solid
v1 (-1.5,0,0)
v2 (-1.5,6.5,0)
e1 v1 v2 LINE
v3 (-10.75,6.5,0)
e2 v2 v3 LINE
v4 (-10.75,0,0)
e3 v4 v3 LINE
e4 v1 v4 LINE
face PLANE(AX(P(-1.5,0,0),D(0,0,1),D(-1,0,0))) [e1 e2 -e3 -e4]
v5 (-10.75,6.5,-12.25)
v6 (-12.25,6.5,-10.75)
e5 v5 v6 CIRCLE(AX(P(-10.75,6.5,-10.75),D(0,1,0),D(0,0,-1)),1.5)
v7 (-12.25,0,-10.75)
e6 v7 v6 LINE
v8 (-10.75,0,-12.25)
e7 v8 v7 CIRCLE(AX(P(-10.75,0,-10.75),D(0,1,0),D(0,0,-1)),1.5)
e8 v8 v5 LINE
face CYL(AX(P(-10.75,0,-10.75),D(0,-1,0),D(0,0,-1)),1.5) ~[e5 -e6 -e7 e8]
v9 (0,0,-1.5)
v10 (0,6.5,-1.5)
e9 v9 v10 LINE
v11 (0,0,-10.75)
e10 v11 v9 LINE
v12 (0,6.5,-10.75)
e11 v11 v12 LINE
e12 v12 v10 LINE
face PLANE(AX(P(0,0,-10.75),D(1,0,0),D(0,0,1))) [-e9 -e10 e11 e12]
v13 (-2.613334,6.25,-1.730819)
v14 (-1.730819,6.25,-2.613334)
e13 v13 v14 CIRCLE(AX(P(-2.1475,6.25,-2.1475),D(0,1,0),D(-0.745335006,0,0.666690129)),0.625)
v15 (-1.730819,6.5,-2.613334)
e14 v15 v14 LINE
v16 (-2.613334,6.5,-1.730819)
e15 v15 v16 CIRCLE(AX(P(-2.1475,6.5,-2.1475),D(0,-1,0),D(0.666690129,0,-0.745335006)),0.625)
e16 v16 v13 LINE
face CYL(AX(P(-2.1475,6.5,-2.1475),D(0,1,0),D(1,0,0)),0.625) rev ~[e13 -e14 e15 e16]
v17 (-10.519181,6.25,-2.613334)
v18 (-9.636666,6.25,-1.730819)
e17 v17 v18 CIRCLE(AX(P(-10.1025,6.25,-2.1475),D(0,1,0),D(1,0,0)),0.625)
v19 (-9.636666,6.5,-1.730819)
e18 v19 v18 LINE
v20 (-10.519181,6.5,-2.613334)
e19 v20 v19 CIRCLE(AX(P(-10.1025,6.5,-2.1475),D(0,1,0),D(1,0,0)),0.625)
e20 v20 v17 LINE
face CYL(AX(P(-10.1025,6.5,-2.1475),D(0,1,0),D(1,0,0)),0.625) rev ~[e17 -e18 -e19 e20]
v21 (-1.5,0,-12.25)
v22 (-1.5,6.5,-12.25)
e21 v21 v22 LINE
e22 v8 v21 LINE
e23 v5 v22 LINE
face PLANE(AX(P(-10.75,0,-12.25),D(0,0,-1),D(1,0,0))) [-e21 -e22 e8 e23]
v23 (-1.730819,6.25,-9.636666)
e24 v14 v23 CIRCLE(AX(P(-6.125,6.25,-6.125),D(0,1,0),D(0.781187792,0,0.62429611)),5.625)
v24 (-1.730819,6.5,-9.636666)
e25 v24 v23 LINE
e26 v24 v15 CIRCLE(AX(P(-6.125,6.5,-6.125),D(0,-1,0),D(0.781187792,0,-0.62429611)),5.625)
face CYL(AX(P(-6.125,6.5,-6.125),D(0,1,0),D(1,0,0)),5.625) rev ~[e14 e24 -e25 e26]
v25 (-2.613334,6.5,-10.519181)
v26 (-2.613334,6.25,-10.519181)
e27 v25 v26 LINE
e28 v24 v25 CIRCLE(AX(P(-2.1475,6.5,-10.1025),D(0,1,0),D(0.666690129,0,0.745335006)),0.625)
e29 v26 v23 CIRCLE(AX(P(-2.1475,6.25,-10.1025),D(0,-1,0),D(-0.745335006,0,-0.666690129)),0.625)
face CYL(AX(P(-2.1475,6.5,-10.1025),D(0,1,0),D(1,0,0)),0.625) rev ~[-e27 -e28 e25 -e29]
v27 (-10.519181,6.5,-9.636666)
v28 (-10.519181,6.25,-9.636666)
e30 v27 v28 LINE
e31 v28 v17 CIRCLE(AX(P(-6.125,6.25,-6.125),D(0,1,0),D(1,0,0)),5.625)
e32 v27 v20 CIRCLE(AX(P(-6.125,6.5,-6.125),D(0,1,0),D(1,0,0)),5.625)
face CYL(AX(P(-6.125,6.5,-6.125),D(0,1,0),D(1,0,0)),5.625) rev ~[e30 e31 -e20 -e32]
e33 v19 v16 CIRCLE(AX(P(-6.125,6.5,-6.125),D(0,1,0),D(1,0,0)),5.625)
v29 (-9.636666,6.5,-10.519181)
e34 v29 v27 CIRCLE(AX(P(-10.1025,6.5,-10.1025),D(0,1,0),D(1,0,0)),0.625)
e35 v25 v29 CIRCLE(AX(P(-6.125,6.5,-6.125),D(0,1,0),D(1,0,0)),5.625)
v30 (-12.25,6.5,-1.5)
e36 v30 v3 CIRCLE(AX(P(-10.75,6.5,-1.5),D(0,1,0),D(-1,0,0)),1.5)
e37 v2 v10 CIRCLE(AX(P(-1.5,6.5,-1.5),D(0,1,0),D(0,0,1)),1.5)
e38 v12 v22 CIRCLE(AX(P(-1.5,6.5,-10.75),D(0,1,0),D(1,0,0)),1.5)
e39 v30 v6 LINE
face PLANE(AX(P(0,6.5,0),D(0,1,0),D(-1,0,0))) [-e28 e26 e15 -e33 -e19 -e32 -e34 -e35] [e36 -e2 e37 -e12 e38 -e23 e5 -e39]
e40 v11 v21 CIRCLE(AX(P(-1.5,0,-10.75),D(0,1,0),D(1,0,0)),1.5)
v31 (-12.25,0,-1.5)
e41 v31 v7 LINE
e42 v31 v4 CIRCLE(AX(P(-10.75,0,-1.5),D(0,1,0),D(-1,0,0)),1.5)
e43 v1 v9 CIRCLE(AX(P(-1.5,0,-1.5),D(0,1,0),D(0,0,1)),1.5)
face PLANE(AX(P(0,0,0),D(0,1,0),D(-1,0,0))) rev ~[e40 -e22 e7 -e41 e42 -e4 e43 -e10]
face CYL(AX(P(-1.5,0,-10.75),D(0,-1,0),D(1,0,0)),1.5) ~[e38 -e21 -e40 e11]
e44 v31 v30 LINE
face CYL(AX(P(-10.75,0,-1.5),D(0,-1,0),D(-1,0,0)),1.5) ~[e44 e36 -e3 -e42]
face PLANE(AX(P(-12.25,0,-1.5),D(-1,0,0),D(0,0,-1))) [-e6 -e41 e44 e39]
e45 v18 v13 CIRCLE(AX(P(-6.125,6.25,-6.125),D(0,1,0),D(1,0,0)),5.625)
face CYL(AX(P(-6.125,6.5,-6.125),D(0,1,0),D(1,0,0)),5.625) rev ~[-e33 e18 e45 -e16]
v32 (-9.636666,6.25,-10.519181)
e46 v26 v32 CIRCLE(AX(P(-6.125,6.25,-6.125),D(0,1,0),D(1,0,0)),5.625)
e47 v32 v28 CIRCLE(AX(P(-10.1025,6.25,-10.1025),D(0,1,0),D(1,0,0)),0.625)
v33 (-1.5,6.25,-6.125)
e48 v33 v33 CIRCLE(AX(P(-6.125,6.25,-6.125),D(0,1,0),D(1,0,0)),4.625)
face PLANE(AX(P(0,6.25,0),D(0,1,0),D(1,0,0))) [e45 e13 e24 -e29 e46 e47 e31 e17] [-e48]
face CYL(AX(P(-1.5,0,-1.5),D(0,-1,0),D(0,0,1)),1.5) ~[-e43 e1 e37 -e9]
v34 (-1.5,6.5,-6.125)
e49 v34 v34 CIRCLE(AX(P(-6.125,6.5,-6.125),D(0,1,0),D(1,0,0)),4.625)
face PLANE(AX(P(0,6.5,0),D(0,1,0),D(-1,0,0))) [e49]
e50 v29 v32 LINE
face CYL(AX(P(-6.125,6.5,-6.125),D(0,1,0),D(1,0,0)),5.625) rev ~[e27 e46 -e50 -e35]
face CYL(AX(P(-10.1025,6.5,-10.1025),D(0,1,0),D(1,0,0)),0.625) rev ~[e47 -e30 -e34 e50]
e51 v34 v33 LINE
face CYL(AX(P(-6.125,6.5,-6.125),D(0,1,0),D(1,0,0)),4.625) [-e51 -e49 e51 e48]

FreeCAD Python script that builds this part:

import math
import FreeCAD as App
import Part
import Sketcher
Q = App.Units.Quantity

doc = App.newDocument("Part")
body = doc.addObject("PartDesign::Body", "Body")

sketch1 = body.newObject("Sketcher::SketchObject", "Sketch")
sketch1.AttachmentSupport = (doc.getObject("XZ_Plane"), [""])
sketch1.MapMode = "FlatFace"
sketch1.addGeometry(Part.LineSegment(App.Vector(-10.8, 0, 0), App.Vector(-1.5, 0, 0)), False)
sketch1.addGeometry(Part.ArcOfCircle(Part.Circle(App.Vector(-1.5, -1.5, 0), App.Vector(0, 0, 1), 1.5), math.radians(0), math.radians(90)), False)
sketch1.addGeometry(Part.LineSegment(App.Vector(0, -1.5, 0), App.Vector(0, -10.8, 0)), False)
sketch1.addGeometry(Part.ArcOfCircle(Part.Circle(App.Vector(-1.5, -10.8, 0), App.Vector(0, 0, 1), 1.5), math.radians(-90), math.radians(0)), False)
sketch1.addGeometry(Part.LineSegment(App.Vector(-1.5, -12.2, 0), App.Vector(-10.8, -12.2, 0)), False)
sketch1.addGeometry(Part.ArcOfCircle(Part.Circle(App.Vector(-10.8, -10.8, 0), App.Vector(0, 0, 1), 1.5), math.radians(180), math.radians(270)), False)
sketch1.addGeometry(Part.LineSegment(App.Vector(-12.2, -10.8, 0), App.Vector(-12.2, -1.5, 0)), False)
sketch1.addGeometry(Part.ArcOfCircle(Part.Circle(App.Vector(-10.8, -1.5, 0), App.Vector(0, 0, 1), 1.5), math.radians(90), math.radians(180)), False)
sketch1.addConstraint(Sketcher.Constraint("Tangent", 0, 2, 1, 2))
sketch1.addConstraint(Sketcher.Constraint("Tangent", 1, 1, 2, 1))
sketch1.addConstraint(Sketcher.Constraint("Tangent", 2, 2, 3, 2))
sketch1.addConstraint(Sketcher.Constraint("Tangent", 3, 1, 4, 1))
sketch1.addConstraint(Sketcher.Constraint("Tangent", 4, 2, 5, 2))
sketch1.addConstraint(Sketcher.Constraint("Tangent", 5, 1, 6, 1))
sketch1.addConstraint(Sketcher.Constraint("Tangent", 6, 2, 7, 2))
sketch1.addConstraint(Sketcher.Constraint("Tangent", 7, 1, 0, 1))
sketch1.addConstraint(Sketcher.Constraint("Horizontal", 0))
sketch1.addConstraint(Sketcher.Constraint("Vertical", 2))
sketch1.addConstraint(Sketcher.Constraint("Horizontal", 4))
sketch1.addConstraint(Sketcher.Constraint("Vertical", 6))
sketch1.addConstraint(Sketcher.Constraint("Equal", 1, 3))
sketch1.addConstraint(Sketcher.Constraint("Equal", 3, 5))
sketch1.addConstraint(Sketcher.Constraint("Equal", 5, 7))
sketch1.addConstraint(Sketcher.Constraint("PointOnObject", 0, 2, -1))
sketch1.addConstraint(Sketcher.Constraint("PointOnObject", 1, 1, -2))
sketch1.addConstraint(Sketcher.Constraint("Equal", 4, 2))
sketch1.addConstraint(Sketcher.Constraint("Radius", 1, Q("1.5 mm")))
sketch1.addConstraint(Sketcher.Constraint("DistanceY", 3, 1, -1, 1, Q("12.25 mm")))
pad1 = body.newObject("PartDesign::Pad", "Pad")
pad1.Profile = sketch1
pad1.Length = 6.5
pad1.Reversed = True

sketch2 = body.newObject("Sketcher::SketchObject", "Sketch001")
sketch2.AttachmentSupport = (doc.getObject("XZ_Plane"), [""])
sketch2.MapMode = "FlatFace"
sketch2.AttachmentOffset = App.Placement(App.Vector(0, 0, -6.5), App.Rotation())
sketch2.addGeometry(Part.ArcOfCircle(Part.Circle(App.Vector(-6.1, -6.1, 0), App.Vector(0, 0, 1), 5.6), math.radians(-39), math.radians(39)), False)
sketch2.addGeometry(Part.ArcOfCircle(Part.Circle(App.Vector(-2.1, -10.1, 0), App.Vector(0, 0, 1), 0.6), math.radians(-138), math.radians(48)), False)
sketch2.addGeometry(Part.ArcOfCircle(Part.Circle(App.Vector(-6.1, -6.1, 0), App.Vector(0, 0, 1), 5.6), math.radians(-129), math.radians(-51)), False)
sketch2.addGeometry(Part.ArcOfCircle(Part.Circle(App.Vector(-10.1, -10.1, 0), App.Vector(0, 0, 1), 0.6), math.radians(132), math.radians(318)), False)
sketch2.addGeometry(Part.ArcOfCircle(Part.Circle(App.Vector(-6.1, -6.1, 0), App.Vector(0, 0, 1), 5.6), math.radians(141), math.radians(219)), False)
sketch2.addGeometry(Part.ArcOfCircle(Part.Circle(App.Vector(-10.1, -2.1, 0), App.Vector(0, 0, 1), 0.6), math.radians(42), math.radians(228)), False)
sketch2.addGeometry(Part.ArcOfCircle(Part.Circle(App.Vector(-6.1, -6.1, 0), App.Vector(0, 0, 1), 5.6), math.radians(51), math.radians(129)), False)
sketch2.addGeometry(Part.ArcOfCircle(Part.Circle(App.Vector(-2.1, -2.1, 0), App.Vector(0, 0, 1), 0.6), math.radians(-48), math.radians(138)), False)
sketch2.addGeometry(Part.Circle(App.Vector(-6.1, -6.1, 0), App.Vector(0, 0, 1), 4.6), False)
sketch2.addConstraint(Sketcher.Constraint("Coincident", 0, 1, 1, 2))
sketch2.addConstraint(Sketcher.Constraint("Coincident", 1, 1, 2, 2))
sketch2.addConstraint(Sketcher.Constraint("Coincident", 2, 1, 3, 2))
sketch2.addConstraint(Sketcher.Constraint("Coincident", 3, 1, 4, 2))
sketch2.addConstraint(Sketcher.Constraint("Coincident", 4, 1, 5, 2))
sketch2.addConstraint(Sketcher.Constraint("Coincident", 5, 1, 6, 2))
sketch2.addConstraint(Sketcher.Constraint("Coincident", 6, 1, 7, 2))
sketch2.addConstraint(Sketcher.Constraint("Coincident", 7, 1, 0, 2))
sketch2.addConstraint(Sketcher.Constraint("Coincident", 2, 3, 0, 3))
sketch2.addConstraint(Sketcher.Constraint("Coincident", 4, 3, 0, 3))
sketch2.addConstraint(Sketcher.Constraint("Coincident", 6, 3, 0, 3))
sketch2.addConstraint(Sketcher.Constraint("Coincident", 8, 3, 0, 3))
sketch2.addConstraint(Sketcher.Constraint("Equal", 0, 2))
sketch2.addConstraint(Sketcher.Constraint("Equal", 1, 3))
sketch2.addConstraint(Sketcher.Constraint("Equal", 2, 4))
sketch2.addConstraint(Sketcher.Constraint("Equal", 3, 5))
sketch2.addConstraint(Sketcher.Constraint("Equal", 4, 6))
sketch2.addConstraint(Sketcher.Constraint("Equal", 5, 7))
sketch2.addConstraint(Sketcher.Constraint("Horizontal", 1, 3, 3, 3))
sketch2.addConstraint(Sketcher.Constraint("Horizontal", 5, 3, 7, 3))
sketch2.addConstraint(Sketcher.Constraint("Horizontal", 1, 1, 2, 1))
sketch2.addConstraint(Sketcher.Constraint("Horizontal", 5, 1, 6, 1))
sketch2.addConstraint(Sketcher.Constraint("Vertical", 3, 3, 5, 3))
sketch2.addConstraint(Sketcher.Constraint("Vertical", 3, 1, 4, 1))
sketch2.addConstraint(Sketcher.Constraint("Radius", 0, Q("5.625 mm")))
sketch2.addConstraint(Sketcher.Constraint("Radius", 1, Q("0.625 mm")))
sketch2.addConstraint(Sketcher.Constraint("Diameter", 8, Q("9.25 mm")))
sketch2.addConstraint(Sketcher.Constraint("DistanceX", 0, 3, -1, 1, Q("6.125 mm")))
sketch2.addConstraint(Sketcher.Constraint("DistanceY", 0, 3, -1, 1, Q("6.125 mm")))
sketch2.addConstraint(Sketcher.Constraint("DistanceX", 3, 3, 1, 3, Q("7.955 mm")))
sketch2.addConstraint(Sketcher.Constraint("DistanceY", 3, 3, 5, 3, Q("7.955 mm")))
pocket1 = body.newObject("PartDesign::Pocket", "Pocket")
pocket1.Profile = sketch2
pocket1.Length = 0.25
pocket1.Reversed = True

doc.recompute()
